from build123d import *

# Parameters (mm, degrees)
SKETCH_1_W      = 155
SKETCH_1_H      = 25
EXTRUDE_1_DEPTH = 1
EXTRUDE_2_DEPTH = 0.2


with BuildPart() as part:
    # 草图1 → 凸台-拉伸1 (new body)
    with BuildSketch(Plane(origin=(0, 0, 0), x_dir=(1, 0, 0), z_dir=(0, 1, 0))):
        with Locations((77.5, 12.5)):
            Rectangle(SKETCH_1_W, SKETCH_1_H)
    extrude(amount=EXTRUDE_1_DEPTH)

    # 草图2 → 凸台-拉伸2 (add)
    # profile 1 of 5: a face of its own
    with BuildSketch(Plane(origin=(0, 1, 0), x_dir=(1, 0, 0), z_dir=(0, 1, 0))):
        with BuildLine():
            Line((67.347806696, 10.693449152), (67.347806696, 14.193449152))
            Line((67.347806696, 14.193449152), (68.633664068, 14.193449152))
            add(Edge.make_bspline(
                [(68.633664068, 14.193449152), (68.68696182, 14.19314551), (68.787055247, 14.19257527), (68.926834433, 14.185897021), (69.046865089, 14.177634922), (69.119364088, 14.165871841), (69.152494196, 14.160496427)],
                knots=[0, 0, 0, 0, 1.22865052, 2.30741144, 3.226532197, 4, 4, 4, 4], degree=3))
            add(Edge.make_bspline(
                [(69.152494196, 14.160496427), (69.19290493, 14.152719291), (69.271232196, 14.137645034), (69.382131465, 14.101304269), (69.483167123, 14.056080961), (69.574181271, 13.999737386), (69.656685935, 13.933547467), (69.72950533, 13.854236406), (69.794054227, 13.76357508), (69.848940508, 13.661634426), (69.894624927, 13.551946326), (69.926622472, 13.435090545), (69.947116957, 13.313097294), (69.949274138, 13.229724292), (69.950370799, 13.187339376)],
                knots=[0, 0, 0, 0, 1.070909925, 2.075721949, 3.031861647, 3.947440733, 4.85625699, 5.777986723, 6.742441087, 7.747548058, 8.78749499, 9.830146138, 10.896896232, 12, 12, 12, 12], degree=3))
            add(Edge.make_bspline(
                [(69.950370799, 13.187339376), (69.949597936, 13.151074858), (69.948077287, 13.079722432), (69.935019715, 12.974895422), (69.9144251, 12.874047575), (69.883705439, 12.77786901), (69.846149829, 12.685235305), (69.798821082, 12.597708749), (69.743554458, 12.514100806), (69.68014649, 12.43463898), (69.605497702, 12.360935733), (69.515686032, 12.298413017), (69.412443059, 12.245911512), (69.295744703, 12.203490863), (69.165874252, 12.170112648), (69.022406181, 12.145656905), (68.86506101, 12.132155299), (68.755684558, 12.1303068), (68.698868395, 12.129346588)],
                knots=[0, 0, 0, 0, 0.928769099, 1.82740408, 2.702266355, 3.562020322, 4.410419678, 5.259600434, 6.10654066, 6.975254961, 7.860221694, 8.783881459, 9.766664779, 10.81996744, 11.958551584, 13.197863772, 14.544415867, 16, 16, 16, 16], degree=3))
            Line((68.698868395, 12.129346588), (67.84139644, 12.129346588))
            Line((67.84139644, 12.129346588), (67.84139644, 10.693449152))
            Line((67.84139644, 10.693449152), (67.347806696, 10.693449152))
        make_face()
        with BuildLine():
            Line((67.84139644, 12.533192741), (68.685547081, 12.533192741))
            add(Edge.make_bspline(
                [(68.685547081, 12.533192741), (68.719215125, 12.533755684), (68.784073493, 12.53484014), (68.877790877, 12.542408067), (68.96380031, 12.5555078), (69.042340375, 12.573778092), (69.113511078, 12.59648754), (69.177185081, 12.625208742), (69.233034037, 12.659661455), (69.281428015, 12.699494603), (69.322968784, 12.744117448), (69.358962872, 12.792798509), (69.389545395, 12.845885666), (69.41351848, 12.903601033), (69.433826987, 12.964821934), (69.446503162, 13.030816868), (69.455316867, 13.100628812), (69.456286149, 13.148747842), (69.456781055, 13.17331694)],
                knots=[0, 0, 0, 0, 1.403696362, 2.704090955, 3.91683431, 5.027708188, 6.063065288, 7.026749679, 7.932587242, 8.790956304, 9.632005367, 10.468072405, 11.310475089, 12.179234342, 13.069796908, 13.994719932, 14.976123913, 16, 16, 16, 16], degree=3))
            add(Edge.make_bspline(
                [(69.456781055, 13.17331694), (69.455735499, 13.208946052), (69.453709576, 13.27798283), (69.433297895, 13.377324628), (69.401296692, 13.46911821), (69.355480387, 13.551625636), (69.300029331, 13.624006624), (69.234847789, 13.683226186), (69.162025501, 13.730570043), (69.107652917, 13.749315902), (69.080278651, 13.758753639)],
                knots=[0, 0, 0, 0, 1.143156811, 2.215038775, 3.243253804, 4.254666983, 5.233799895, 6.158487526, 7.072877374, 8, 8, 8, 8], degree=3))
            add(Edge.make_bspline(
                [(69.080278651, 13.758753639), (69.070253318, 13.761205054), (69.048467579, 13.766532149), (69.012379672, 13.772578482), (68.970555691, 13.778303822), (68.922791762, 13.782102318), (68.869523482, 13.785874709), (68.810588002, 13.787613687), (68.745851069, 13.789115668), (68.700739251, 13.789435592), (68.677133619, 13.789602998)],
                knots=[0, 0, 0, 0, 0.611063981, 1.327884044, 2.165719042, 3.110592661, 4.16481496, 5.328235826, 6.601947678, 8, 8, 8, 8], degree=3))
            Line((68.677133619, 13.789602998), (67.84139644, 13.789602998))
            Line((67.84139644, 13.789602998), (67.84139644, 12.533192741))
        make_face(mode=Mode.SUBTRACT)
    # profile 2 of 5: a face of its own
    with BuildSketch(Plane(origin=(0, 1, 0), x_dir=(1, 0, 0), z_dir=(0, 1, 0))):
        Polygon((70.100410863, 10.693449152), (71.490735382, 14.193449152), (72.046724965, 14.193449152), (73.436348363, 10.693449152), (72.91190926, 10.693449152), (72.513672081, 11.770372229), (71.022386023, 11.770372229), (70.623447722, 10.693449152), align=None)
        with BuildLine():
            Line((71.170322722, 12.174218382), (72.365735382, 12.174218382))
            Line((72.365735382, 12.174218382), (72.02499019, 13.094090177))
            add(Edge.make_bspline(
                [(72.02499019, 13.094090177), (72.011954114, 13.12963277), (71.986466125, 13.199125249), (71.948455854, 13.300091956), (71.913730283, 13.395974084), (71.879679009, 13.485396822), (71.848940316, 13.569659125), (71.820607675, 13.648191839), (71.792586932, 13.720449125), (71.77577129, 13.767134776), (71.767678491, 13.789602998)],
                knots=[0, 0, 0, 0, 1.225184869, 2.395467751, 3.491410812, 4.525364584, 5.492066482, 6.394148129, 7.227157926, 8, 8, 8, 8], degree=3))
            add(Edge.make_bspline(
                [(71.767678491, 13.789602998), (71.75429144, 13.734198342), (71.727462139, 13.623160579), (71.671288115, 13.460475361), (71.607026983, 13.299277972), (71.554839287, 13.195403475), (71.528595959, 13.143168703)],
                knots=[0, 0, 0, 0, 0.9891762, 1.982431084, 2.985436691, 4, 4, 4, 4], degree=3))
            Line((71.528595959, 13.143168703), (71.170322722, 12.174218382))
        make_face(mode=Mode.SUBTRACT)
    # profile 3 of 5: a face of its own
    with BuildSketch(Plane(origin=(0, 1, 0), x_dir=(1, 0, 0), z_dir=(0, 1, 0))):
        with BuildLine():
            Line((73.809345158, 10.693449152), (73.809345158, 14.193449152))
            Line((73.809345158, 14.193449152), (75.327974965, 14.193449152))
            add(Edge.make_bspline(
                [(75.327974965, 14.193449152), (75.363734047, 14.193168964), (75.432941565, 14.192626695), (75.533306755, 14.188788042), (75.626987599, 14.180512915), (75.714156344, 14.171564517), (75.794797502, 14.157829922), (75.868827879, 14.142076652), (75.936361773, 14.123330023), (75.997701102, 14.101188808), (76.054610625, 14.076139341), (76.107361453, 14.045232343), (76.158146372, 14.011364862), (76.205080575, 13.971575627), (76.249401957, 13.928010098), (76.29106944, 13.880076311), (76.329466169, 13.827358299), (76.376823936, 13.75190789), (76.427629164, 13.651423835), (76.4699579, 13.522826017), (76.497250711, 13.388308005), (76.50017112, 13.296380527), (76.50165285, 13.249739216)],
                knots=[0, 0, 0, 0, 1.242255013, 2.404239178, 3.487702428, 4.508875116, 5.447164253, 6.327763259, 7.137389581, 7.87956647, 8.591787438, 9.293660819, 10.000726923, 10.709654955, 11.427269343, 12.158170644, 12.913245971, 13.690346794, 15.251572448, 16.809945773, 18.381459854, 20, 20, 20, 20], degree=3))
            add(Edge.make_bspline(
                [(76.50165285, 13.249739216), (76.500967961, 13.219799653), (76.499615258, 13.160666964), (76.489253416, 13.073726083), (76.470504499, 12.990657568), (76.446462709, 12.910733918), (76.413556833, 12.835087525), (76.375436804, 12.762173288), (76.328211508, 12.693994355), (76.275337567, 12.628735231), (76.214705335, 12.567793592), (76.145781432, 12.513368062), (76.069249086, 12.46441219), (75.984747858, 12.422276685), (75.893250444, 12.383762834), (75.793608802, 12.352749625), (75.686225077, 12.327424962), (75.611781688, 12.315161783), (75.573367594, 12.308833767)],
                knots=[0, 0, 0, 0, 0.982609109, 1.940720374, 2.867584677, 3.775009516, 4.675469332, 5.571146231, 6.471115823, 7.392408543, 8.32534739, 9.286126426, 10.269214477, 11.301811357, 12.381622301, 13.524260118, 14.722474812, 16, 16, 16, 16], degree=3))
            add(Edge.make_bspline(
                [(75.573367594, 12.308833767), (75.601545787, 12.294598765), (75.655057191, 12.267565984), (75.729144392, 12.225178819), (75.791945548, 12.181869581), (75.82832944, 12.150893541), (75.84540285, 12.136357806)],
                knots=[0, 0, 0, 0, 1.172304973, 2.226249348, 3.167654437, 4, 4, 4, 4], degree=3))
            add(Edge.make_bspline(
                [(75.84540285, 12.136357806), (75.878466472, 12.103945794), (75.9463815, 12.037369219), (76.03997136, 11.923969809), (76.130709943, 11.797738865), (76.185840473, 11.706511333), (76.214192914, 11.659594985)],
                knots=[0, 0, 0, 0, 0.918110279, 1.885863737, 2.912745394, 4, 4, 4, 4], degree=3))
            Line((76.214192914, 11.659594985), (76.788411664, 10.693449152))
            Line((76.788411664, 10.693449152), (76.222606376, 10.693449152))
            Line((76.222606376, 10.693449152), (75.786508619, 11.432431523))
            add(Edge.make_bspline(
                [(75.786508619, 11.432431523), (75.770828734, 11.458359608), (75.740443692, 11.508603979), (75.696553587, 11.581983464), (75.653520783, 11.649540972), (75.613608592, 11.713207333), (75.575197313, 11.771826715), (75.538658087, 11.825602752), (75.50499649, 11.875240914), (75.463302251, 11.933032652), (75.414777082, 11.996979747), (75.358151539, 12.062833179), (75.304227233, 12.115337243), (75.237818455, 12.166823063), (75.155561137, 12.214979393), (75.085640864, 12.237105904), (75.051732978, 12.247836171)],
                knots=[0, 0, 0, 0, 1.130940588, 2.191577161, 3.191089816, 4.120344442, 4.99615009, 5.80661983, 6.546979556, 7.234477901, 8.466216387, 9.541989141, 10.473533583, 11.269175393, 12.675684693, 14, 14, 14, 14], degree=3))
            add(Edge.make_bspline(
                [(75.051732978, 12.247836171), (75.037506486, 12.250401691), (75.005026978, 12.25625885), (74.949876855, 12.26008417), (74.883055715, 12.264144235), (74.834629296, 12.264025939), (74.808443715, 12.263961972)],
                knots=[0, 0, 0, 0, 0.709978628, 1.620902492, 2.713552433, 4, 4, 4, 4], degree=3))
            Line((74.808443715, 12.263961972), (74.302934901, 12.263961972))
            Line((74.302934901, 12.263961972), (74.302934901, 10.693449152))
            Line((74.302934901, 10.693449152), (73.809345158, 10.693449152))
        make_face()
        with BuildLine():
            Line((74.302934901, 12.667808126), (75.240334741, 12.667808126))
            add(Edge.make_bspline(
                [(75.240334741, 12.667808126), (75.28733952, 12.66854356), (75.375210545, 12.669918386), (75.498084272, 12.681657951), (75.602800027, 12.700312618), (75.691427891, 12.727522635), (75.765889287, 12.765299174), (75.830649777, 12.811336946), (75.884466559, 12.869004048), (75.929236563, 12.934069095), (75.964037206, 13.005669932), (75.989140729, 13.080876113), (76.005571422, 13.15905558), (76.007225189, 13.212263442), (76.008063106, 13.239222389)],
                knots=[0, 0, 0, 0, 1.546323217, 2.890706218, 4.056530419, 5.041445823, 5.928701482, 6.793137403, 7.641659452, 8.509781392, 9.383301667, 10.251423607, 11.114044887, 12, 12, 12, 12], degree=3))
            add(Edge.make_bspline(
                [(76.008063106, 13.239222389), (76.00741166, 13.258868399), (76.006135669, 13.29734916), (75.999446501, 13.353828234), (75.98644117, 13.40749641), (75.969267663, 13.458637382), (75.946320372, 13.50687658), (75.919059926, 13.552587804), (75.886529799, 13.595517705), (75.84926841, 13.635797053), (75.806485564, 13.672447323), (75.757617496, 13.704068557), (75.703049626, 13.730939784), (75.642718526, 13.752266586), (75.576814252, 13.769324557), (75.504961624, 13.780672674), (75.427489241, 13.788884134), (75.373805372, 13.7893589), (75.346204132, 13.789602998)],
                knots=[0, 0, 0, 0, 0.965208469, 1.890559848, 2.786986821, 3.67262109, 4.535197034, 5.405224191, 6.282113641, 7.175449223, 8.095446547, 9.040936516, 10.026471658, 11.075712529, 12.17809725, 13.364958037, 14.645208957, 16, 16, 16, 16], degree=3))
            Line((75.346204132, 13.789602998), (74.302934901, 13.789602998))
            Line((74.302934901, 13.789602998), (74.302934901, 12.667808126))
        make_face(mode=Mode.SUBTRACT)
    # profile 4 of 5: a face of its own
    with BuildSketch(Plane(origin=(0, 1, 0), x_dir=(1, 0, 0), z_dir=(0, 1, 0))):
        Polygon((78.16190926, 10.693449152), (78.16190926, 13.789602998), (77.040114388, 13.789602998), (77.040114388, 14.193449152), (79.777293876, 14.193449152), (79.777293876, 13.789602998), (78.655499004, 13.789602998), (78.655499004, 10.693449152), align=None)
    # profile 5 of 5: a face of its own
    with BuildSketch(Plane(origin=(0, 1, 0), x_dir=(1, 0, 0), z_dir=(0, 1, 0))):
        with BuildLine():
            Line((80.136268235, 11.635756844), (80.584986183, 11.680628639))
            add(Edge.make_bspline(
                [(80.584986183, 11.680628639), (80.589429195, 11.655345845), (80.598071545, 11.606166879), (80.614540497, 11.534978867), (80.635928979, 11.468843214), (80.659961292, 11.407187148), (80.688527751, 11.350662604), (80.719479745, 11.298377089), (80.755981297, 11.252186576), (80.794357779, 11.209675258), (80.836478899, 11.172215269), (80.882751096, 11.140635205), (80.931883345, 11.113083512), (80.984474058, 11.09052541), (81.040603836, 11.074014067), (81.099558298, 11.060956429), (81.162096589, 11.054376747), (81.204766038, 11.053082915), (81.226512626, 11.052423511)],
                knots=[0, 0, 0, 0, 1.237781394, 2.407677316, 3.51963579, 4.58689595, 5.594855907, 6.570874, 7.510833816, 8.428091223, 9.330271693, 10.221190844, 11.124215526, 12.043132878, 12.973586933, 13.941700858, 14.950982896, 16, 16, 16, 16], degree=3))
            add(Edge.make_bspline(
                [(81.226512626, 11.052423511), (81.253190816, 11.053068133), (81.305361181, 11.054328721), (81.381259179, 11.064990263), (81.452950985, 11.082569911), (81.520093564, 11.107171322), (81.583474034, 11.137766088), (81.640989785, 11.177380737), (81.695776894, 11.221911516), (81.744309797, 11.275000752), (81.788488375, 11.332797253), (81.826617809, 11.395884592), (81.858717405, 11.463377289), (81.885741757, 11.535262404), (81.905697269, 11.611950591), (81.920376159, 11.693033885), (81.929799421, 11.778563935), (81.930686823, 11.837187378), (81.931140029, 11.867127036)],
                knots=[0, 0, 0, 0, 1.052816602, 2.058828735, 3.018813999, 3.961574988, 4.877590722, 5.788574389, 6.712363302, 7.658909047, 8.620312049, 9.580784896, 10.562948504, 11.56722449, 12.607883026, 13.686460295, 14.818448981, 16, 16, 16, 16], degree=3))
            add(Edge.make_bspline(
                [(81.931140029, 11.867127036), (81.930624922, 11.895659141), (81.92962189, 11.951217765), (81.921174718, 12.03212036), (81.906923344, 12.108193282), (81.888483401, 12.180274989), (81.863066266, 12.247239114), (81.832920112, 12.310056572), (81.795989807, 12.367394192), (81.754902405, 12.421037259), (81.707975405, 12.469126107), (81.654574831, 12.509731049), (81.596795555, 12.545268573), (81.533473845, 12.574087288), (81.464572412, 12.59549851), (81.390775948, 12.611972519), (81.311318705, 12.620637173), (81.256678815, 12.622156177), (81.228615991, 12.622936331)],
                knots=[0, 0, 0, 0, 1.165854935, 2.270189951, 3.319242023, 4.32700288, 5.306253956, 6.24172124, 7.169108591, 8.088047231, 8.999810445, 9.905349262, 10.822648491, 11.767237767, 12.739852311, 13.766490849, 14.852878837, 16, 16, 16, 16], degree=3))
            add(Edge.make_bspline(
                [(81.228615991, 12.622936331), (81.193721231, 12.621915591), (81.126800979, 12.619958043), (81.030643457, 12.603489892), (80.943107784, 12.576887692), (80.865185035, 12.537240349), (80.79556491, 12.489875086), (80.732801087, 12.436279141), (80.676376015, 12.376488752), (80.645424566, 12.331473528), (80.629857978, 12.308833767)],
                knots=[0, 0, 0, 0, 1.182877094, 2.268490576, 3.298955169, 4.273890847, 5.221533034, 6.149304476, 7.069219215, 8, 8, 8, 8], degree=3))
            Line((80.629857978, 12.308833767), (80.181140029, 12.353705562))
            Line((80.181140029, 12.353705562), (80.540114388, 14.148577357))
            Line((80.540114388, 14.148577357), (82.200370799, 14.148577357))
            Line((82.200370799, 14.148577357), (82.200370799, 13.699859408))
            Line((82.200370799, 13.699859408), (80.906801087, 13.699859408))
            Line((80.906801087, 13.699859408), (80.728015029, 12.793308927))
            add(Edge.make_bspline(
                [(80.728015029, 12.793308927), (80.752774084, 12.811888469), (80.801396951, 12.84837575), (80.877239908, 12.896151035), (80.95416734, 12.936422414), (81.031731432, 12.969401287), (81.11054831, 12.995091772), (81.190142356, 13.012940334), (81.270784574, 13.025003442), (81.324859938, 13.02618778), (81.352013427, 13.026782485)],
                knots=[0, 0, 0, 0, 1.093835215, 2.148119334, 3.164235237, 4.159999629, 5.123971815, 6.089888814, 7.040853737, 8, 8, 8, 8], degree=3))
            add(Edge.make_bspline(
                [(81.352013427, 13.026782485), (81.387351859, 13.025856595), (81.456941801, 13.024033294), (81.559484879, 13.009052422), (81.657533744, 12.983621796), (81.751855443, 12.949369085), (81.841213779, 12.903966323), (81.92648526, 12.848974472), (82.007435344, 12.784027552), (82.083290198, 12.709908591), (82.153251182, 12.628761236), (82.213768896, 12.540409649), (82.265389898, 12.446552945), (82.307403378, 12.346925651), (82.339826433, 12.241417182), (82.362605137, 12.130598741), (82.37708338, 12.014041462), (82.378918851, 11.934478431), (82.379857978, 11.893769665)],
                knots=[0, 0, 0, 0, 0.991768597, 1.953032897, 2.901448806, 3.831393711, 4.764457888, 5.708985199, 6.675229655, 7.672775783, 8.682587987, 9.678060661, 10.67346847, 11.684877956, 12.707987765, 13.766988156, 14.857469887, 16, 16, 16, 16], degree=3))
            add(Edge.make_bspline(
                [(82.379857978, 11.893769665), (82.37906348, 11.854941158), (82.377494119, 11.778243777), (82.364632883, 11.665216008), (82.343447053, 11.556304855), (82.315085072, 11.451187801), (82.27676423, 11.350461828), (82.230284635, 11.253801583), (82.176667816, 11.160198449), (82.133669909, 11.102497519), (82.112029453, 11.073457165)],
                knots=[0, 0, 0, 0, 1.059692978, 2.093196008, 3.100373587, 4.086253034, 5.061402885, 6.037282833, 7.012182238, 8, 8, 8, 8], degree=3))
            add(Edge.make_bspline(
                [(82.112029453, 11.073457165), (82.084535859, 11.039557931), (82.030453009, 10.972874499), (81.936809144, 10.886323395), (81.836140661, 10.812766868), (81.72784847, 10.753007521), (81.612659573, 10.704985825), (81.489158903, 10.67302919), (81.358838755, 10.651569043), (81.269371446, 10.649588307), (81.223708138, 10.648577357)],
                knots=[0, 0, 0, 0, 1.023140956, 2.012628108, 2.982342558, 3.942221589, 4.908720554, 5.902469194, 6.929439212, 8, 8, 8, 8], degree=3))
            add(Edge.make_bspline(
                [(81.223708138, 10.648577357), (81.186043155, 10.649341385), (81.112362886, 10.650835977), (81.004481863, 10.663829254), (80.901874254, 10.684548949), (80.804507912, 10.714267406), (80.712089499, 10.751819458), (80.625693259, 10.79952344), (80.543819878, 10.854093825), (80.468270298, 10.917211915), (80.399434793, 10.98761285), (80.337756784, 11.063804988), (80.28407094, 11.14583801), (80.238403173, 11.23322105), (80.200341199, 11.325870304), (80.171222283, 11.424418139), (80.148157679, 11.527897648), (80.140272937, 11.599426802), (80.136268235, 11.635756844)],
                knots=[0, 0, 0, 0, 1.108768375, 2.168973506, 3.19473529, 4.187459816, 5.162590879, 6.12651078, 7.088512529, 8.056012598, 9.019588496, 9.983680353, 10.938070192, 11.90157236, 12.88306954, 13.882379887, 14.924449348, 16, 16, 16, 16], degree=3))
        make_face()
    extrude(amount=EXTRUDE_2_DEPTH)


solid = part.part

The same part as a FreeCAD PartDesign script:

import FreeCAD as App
import Part
import Sketcher
from FreeCAD import Vector


def add_polygon(sketch, points):
    """Adds a closed chain of lines whose ends are joined by coincident constraints."""
    first, n = sketch.GeometryCount, len(points)
    for a, b in zip(points, points[1:] + points[:1]):
        sketch.addGeometry(Part.LineSegment(App.Vector(*a, 0), App.Vector(*b, 0)), False)
    for i in range(n):
        sketch.addConstraint(Sketcher.Constraint("Coincident", first + i, 2, first + (i + 1) % n, 1))

doc = App.newDocument("Part")
body = doc.addObject("PartDesign::Body", "Body")

# Sketch on XZ plane
sketch1 = doc.addObject("Sketcher::SketchObject", "Sketch")
body.addObject(sketch1)
sketch1.AttachmentSupport = (doc.XZ_Plane, [""])
sketch1.MapMode = "FlatFace"
add_polygon(sketch1, [(0, -25), (0, 0), (155, 0), (155, -25)])  # lines 0-3
sketch1.addConstraint([
    Sketcher.Constraint("Vertical", 0),
    Sketcher.Constraint("Horizontal", 1),
    Sketcher.Constraint("Vertical", 2),
    Sketcher.Constraint("Horizontal", 3),
    Sketcher.Constraint("Coincident", 0, 2, -1, 1),
    Sketcher.Constraint("DistanceX", 1, 1, 1, 2, 155.0),
    Sketcher.Constraint("DistanceY", 0, 1, 0, 2, 25.0),
])
pad1 = doc.addObject("PartDesign::Pad", "Pad")
body.addObject(pad1)
pad1.Profile = sketch1
pad1.Length = 1
pad1.Reversed = True

# Sketch on XZ plane
sketch2 = doc.addObject("Sketcher::SketchObject", "Sketch001")
body.addObject(sketch2)
sketch2.AttachmentSupport = (doc.XZ_Plane, [""])
sketch2.MapMode = "FlatFace"
sketch2.AttachmentOffset = App.Placement(Vector(0, 0, -1), App.Rotation())
sketch2.addGeometry(Part.LineSegment(Vector(67.347807, -14.193449, 0), Vector(67.347807, -10.693449, 0)), False)  # 0
sketch2.addGeometry(Part.LineSegment(Vector(67.347807, -10.693449, 0), Vector(67.841396, -10.693449, 0)), False)  # 1
sketch2.addGeometry(Part.LineSegment(Vector(67.841396, -10.693449, 0), Vector(67.841396, -12.129347, 0)), False)  # 2
sketch2.addGeometry(Part.LineSegment(Vector(67.841396, -12.129347, 0), Vector(68.698868, -12.129347, 0)), False)  # 3
sketch2.addGeometry(Part.BSplineCurve([Vector(69.950371, -13.187339, 0), Vector(69.949598, -13.151075, 0), Vector(69.948077, -13.079722, 0), Vector(69.93502, -12.974895, 0), Vector(69.914425, -12.874048, 0), Vector(69.883705, -12.777869, 0), Vector(69.84615, -12.685235, 0), Vector(69.798821, -12.597709, 0), Vector(69.743554, -12.514101, 0), Vector(69.680146, -12.434639, 0), Vector(69.605498, -12.360936, 0), Vector(69.515686, -12.298413, 0), Vector(69.412443, -12.245912, 0), Vector(69.295745, -12.203491, 0), Vector(69.165874, -12.170113, 0), Vector(69.022406, -12.145657, 0), Vector(68.865061, -12.132155, 0), Vector(68.755685, -12.130307, 0), Vector(68.698868, -12.129347, 0)], [4, 1, 1, 1, 1, 1, 1, 1, 1, 1, 1, 1, 1, 1, 1, 1, 4], [0, 0.928769099, 1.82740408, 2.702266355, 3.562020322, 4.410419678, 5.259600434, 6.10654066, 6.975254961, 7.860221694, 8.783881459, 9.766664779, 10.81996744, 11.958551584, 13.197863772, 14.544415867, 16], False, 3, [1, 1, 1, 1, 1, 1, 1, 1, 1, 1, 1, 1, 1, 1, 1, 1, 1, 1, 1], False), False)  # 4
sketch2.addGeometry(Part.BSplineCurve([Vector(69.152494, -14.160496, 0), Vector(69.192905, -14.152719, 0), Vector(69.271232, -14.137645, 0), Vector(69.382131, -14.101304, 0), Vector(69.483167, -14.056081, 0), Vector(69.574181, -13.999737, 0), Vector(69.656686, -13.933547, 0), Vector(69.729505, -13.854236, 0), Vector(69.794054, -13.763575, 0), Vector(69.848941, -13.661634, 0), Vector(69.894625, -13.551946, 0), Vector(69.926622, -13.435091, 0), Vector(69.947117, -13.313097, 0), Vector(69.949274, -13.229724, 0), Vector(69.950371, -13.187339, 0)], [4, 1, 1, 1, 1, 1, 1, 1, 1, 1, 1, 1, 4], [0, 1.070909925, 2.075721949, 3.031861647, 3.947440733, 4.85625699, 5.777986723, 6.742441087, 7.747548058, 8.78749499, 9.830146138, 10.896896232, 12], False, 3, [1, 1, 1, 1, 1, 1, 1, 1, 1, 1, 1, 1, 1, 1, 1], False), False)  # 5
sketch2.addGeometry(Part.BSplineCurve([Vector(68.633664, -14.193449, 0), Vector(68.686962, -14.193146, 0), Vector(68.787055, -14.192575, 0), Vector(68.926834, -14.185897, 0), Vector(69.046865, -14.177635, 0), Vector(69.119364, -14.165872, 0), Vector(69.152494, -14.160496, 0)], [4, 1, 1, 1, 4], [0, 1.22865052, 2.30741144, 3.226532197, 4], False, 3, [1, 1, 1, 1, 1, 1, 1], False), False)  # 6
sketch2.addGeometry(Part.LineSegment(Vector(68.633664, -14.193449, 0), Vector(67.347807, -14.193449, 0)), False)  # 7
sketch2.addGeometry(Part.LineSegment(Vector(67.841396, -12.533193, 0), Vector(67.841396, -13.789603, 0)), False)  # 8
sketch2.addGeometry(Part.LineSegment(Vector(67.841396, -13.789603, 0), Vector(68.677134, -13.789603, 0)), False)  # 9
sketch2.addGeometry(Part.BSplineCurve([Vector(69.080279, -13.758754, 0), Vector(69.070253, -13.761205, 0), Vector(69.048468, -13.766532, 0), Vector(69.01238, -13.772578, 0), Vector(68.970556, -13.778304, 0), Vector(68.922792, -13.782102, 0), Vector(68.869523, -13.785875, 0), Vector(68.810588, -13.787614, 0), Vector(68.745851, -13.789116, 0), Vector(68.700739, -13.789436, 0), Vector(68.677134, -13.789603, 0)], [4, 1, 1, 1, 1, 1, 1, 1, 4], [0, 0.611063981, 1.327884044, 2.165719042, 3.110592661, 4.16481496, 5.328235826, 6.601947678, 8], False, 3, [1, 1, 1, 1, 1, 1, 1, 1, 1, 1, 1], False), False)  # 10
sketch2.addGeometry(Part.BSplineCurve([Vector(69.456781, -13.173317, 0), Vector(69.455735, -13.208946, 0), Vector(69.45371, -13.277983, 0), Vector(69.433298, -13.377325, 0), Vector(69.401297, -13.469118, 0), Vector(69.35548, -13.551626, 0), Vector(69.300029, -13.624007, 0), Vector(69.234848, -13.683226, 0), Vector(69.162026, -13.73057, 0), Vector(69.107653, -13.749316, 0), Vector(69.080279, -13.758754, 0)], [4, 1, 1, 1, 1, 1, 1, 1, 4], [0, 1.143156811, 2.215038775, 3.243253804, 4.254666983, 5.233799895, 6.158487526, 7.072877374, 8], False, 3, [1, 1, 1, 1, 1, 1, 1, 1, 1, 1, 1], False), False)  # 11
sketch2.addGeometry(Part.BSplineCurve([Vector(68.685547, -12.533193, 0), Vector(68.719215, -12.533756, 0), Vector(68.784073, -12.53484, 0), Vector(68.877791, -12.542408, 0), Vector(68.9638, -12.555508, 0), Vector(69.04234, -12.573778, 0), Vector(69.113511, -12.596488, 0), Vector(69.177185, -12.625209, 0), Vector(69.233034, -12.659661, 0), Vector(69.281428, -12.699495, 0), Vector(69.322969, -12.744117, 0), Vector(69.358963, -12.792799, 0), Vector(69.389545, -12.845886, 0), Vector(69.413518, -12.903601, 0), Vector(69.433827, -12.964822, 0), Vector(69.446503, -13.030817, 0), Vector(69.455317, -13.100629, 0), Vector(69.456286, -13.148748, 0), Vector(69.456781, -13.173317, 0)], [4, 1, 1, 1, 1, 1, 1, 1, 1, 1, 1, 1, 1, 1, 1, 1, 4], [0, 1.403696362, 2.704090955, 3.91683431, 5.027708188, 6.063065288, 7.026749679, 7.932587242, 8.790956304, 9.632005367, 10.468072405, 11.310475089, 12.179234342, 13.069796908, 13.994719932, 14.976123913, 16], False, 3, [1, 1, 1, 1, 1, 1, 1, 1, 1, 1, 1, 1, 1, 1, 1, 1, 1, 1, 1], False), False)  # 12
sketch2.addGeometry(Part.LineSegment(Vector(68.685547, -12.533193, 0), Vector(67.841396, -12.533193, 0)), False)  # 13
add_polygon(sketch2, [(71.490735, -14.193449), (70.100411, -10.693449), (70.623448, -10.693449), (71.022386, -11.770372), (72.513672, -11.770372), (72.911909, -10.693449), (73.436348, -10.693449), (72.046725, -14.193449)])  # lines 14-21
sketch2.addGeometry(Part.LineSegment(Vector(71.170323, -12.174218, 0), Vector(71.528596, -13.143169, 0)), False)  # 22
sketch2.addGeometry(Part.BSplineCurve([Vector(71.767678, -13.789603, 0), Vector(71.754291, -13.734198, 0), Vector(71.727462, -13.623161, 0), Vector(71.671288, -13.460475, 0), Vector(71.607027, -13.299278, 0), Vector(71.554839, -13.195403, 0), Vector(71.528596, -13.143169, 0)], [4, 1, 1, 1, 4], [0, 0.9891762, 1.982431084, 2.985436691, 4], False, 3, [1, 1, 1, 1, 1, 1, 1], False), False)  # 23
sketch2.addGeometry(Part.BSplineCurve([Vector(72.02499, -13.09409, 0), Vector(72.011954, -13.129633, 0), Vector(71.986466, -13.199125, 0), Vector(71.948456, -13.300092, 0), Vector(71.91373, -13.395974, 0), Vector(71.879679, -13.485397, 0), Vector(71.84894, -13.569659, 0), Vector(71.820608, -13.648192, 0), Vector(71.792587, -13.720449, 0), Vector(71.775771, -13.767135, 0), Vector(71.767678, -13.789603, 0)], [4, 1, 1, 1, 1, 1, 1, 1, 4], [0, 1.225184869, 2.395467751, 3.491410812, 4.525364584, 5.492066482, 6.394148129, 7.227157926, 8], False, 3, [1, 1, 1, 1, 1, 1, 1, 1, 1, 1, 1], False), False)  # 24
sketch2.addGeometry(Part.LineSegment(Vector(72.02499, -13.09409, 0), Vector(72.365735, -12.174218, 0)), False)  # 25
sketch2.addGeometry(Part.LineSegment(Vector(72.365735, -12.174218, 0), Vector(71.170323, -12.174218, 0)), False)  # 26
sketch2.addGeometry(Part.LineSegment(Vector(73.809345, -14.193449, 0), Vector(73.809345, -10.693449, 0)), False)  # 27
sketch2.addGeometry(Part.LineSegment(Vector(73.809345, -10.693449, 0), Vector(74.302935, -10.693449, 0)), False)  # 28
sketch2.addGeometry(Part.LineSegment(Vector(74.302935, -10.693449, 0), Vector(74.302935, -12.263962, 0)), False)  # 29
sketch2.addGeometry(Part.LineSegment(Vector(74.302935, -12.263962, 0), Vector(74.808444, -12.263962, 0)), False)  # 30
sketch2.addGeometry(Part.BSplineCurve([Vector(75.051733, -12.247836, 0), Vector(75.037506, -12.250402, 0), Vector(75.005027, -12.256259, 0), Vector(74.949877, -12.260084, 0), Vector(74.883056, -12.264144, 0), Vector(74.834629, -12.264026, 0), Vector(74.808444, -12.263962, 0)], [4, 1, 1, 1, 4], [0, 0.709978628, 1.620902492, 2.713552433, 4], False, 3, [1, 1, 1, 1, 1, 1, 1], False), False)  # 31
sketch2.addGeometry(Part.BSplineCurve([Vector(75.786509, -11.432432, 0), Vector(75.770829, -11.45836, 0), Vector(75.740444, -11.508604, 0), Vector(75.696554, -11.581983, 0), Vector(75.653521, -11.649541, 0), Vector(75.613609, -11.713207, 0), Vector(75.575197, -11.771827, 0), Vector(75.538658, -11.825603, 0), Vector(75.504996, -11.875241, 0), Vector(75.463302, -11.933033, 0), Vector(75.414777, -11.99698, 0), Vector(75.358152, -12.062833, 0), Vector(75.304227, -12.115337, 0), Vector(75.237818, -12.166823, 0), Vector(75.155561, -12.214979, 0), Vector(75.085641, -12.237106, 0), Vector(75.051733, -12.247836, 0)], [4, 1, 1, 1, 1, 1, 1, 1, 1, 1, 1, 1, 1, 1, 4], [0, 1.130940588, 2.191577161, 3.191089816, 4.120344442, 4.99615009, 5.80661983, 6.546979556, 7.234477901, 8.466216387, 9.541989141, 10.473533583, 11.269175393, 12.675684693, 14], False, 3, [1, 1, 1, 1, 1, 1, 1, 1, 1, 1, 1, 1, 1, 1, 1, 1, 1], False), False)  # 32
sketch2.addGeometry(Part.LineSegment(Vector(75.786509, -11.432432, 0), Vector(76.222606, -10.693449, 0)), False)  # 33
sketch2.addGeometry(Part.LineSegment(Vector(76.222606, -10.693449, 0), Vector(76.788412, -10.693449, 0)), False)  # 34
sketch2.addGeometry(Part.LineSegment(Vector(76.788412, -10.693449, 0), Vector(76.214193, -11.659595, 0)), False)  # 35
sketch2.addGeometry(Part.BSplineCurve([Vector(75.845403, -12.136358, 0), Vector(75.878466, -12.103946, 0), Vector(75.946382, -12.037369, 0), Vector(76.039971, -11.92397, 0), Vector(76.13071, -11.797739, 0), Vector(76.18584, -11.706511, 0), Vector(76.214193, -11.659595, 0)], [4, 1, 1, 1, 4], [0, 0.918110279, 1.885863737, 2.912745394, 4], False, 3, [1, 1, 1, 1, 1, 1, 1], False), False)  # 36
sketch2.addGeometry(Part.BSplineCurve([Vector(75.573368, -12.308834, 0), Vector(75.601546, -12.294599, 0), Vector(75.655057, -12.267566, 0), Vector(75.729144, -12.225179, 0), Vector(75.791946, -12.18187, 0), Vector(75.828329, -12.150894, 0), Vector(75.845403, -12.136358, 0)], [4, 1, 1, 1, 4], [0, 1.172304973, 2.226249348, 3.167654437, 4], False, 3, [1, 1, 1, 1, 1, 1, 1], False), False)  # 37
sketch2.addGeometry(Part.BSplineCurve([Vector(76.501653, -13.249739, 0), Vector(76.500968, -13.2198, 0), Vector(76.499615, -13.160667, 0), Vector(76.489253, -13.073726, 0), Vector(76.470504, -12.990658, 0), Vector(76.446463, -12.910734, 0), Vector(76.413557, -12.835088, 0), Vector(76.375437, -12.762173, 0), Vector(76.328212, -12.693994, 0), Vector(76.275338, -12.628735, 0), Vector(76.214705, -12.567794, 0), Vector(76.145781, -12.513368, 0), Vector(76.069249, -12.464412, 0), Vector(75.984748, -12.422277, 0), Vector(75.89325, -12.383763, 0), Vector(75.793609, -12.35275, 0), Vector(75.686225, -12.327425, 0), Vector(75.611782, -12.315162, 0), Vector(75.573368, -12.308834, 0)], [4, 1, 1, 1, 1, 1, 1, 1, 1, 1, 1, 1, 1, 1, 1, 1, 4], [0, 0.982609109, 1.940720374, 2.867584677, 3.775009516, 4.675469332, 5.571146231, 6.471115823, 7.392408543, 8.32534739, 9.286126426, 10.269214477, 11.301811357, 12.381622301, 13.524260118, 14.722474812, 16], False, 3, [1, 1, 1, 1, 1, 1, 1, 1, 1, 1, 1, 1, 1, 1, 1, 1, 1, 1, 1], False), False)  # 38
sketch2.addGeometry(Part.BSplineCurve([Vector(75.327975, -14.193449, 0), Vector(75.363734, -14.193169, 0), Vector(75.432942, -14.192627, 0), Vector(75.533307, -14.188788, 0), Vector(75.626988, -14.180513, 0), Vector(75.714156, -14.171565, 0), Vector(75.794798, -14.15783, 0), Vector(75.868828, -14.142077, 0), Vector(75.936362, -14.12333, 0), Vector(75.997701, -14.101189, 0), Vector(76.054611, -14.076139, 0), Vector(76.107361, -14.045232, 0), Vector(76.158146, -14.011365, 0), Vector(76.205081, -13.971576, 0), Vector(76.249402, -13.92801, 0), Vector(76.291069, -13.880076, 0), Vector(76.329466, -13.827358, 0), Vector(76.376824, -13.751908, 0), Vector(76.427629, -13.651424, 0), Vector(76.469958, -13.522826, 0), Vector(76.497251, -13.388308, 0), Vector(76.500171, -13.296381, 0), Vector(76.501653, -13.249739, 0)], [4, 1, 1, 1, 1, 1, 1, 1, 1, 1, 1, 1, 1, 1, 1, 1, 1, 1, 1, 1, 4], [0, 1.242255013, 2.404239178, 3.487702428, 4.508875116, 5.447164253, 6.327763259, 7.137389581, 7.87956647, 8.591787438, 9.293660819, 10.000726923, 10.709654955, 11.427269343, 12.158170644, 12.913245971, 13.690346794, 15.251572448, 16.809945773, 18.381459854, 20], False, 3, [1, 1, 1, 1, 1, 1, 1, 1, 1, 1, 1, 1, 1, 1, 1, 1, 1, 1, 1, 1, 1, 1, 1], False), False)  # 39
sketch2.addGeometry(Part.LineSegment(Vector(75.327975, -14.193449, 0), Vector(73.809345, -14.193449, 0)), False)  # 40
sketch2.addGeometry(Part.LineSegment(Vector(74.302935, -12.667808, 0), Vector(74.302935, -13.789603, 0)), False)  # 41
sketch2.addGeometry(Part.LineSegment(Vector(74.302935, -13.789603, 0), Vector(75.346204, -13.789603, 0)), False)  # 42
sketch2.addGeometry(Part.BSplineCurve([Vector(76.008063, -13.239222, 0), Vector(76.007412, -13.258868, 0), Vector(76.006136, -13.297349, 0), Vector(75.999447, -13.353828, 0), Vector(75.986441, -13.407496, 0), Vector(75.969268, -13.458637, 0), Vector(75.94632, -13.506877, 0), Vector(75.91906, -13.552588, 0), Vector(75.88653, -13.595518, 0), Vector(75.849268, -13.635797, 0), Vector(75.806486, -13.672447, 0), Vector(75.757617, -13.704069, 0), Vector(75.70305, -13.73094, 0), Vector(75.642719, -13.752267, 0), Vector(75.576814, -13.769325, 0), Vector(75.504962, -13.780673, 0), Vector(75.427489, -13.788884, 0), Vector(75.373805, -13.789359, 0), Vector(75.346204, -13.789603, 0)], [4, 1, 1, 1, 1, 1, 1, 1, 1, 1, 1, 1, 1, 1, 1, 1, 4], [0, 0.965208469, 1.890559848, 2.786986821, 3.67262109, 4.535197034, 5.405224191, 6.282113641, 7.175449223, 8.095446547, 9.040936516, 10.026471658, 11.075712529, 12.17809725, 13.364958037, 14.645208957, 16], False, 3, [1, 1, 1, 1, 1, 1, 1, 1, 1, 1, 1, 1, 1, 1, 1, 1, 1, 1, 1], False), False)  # 43
sketch2.addGeometry(Part.BSplineCurve([Vector(75.240335, -12.667808, 0), Vector(75.28734, -12.668544, 0), Vector(75.375211, -12.669918, 0), Vector(75.498084, -12.681658, 0), Vector(75.6028, -12.700313, 0), Vector(75.691428, -12.727523, 0), Vector(75.765889, -12.765299, 0), Vector(75.83065, -12.811337, 0), Vector(75.884467, -12.869004, 0), Vector(75.929237, -12.934069, 0), Vector(75.964037, -13.00567, 0), Vector(75.989141, -13.080876, 0), Vector(76.005571, -13.159056, 0), Vector(76.007225, -13.212263, 0), Vector(76.008063, -13.239222, 0)], [4, 1, 1, 1, 1, 1, 1, 1, 1, 1, 1, 1, 4], [0, 1.546323217, 2.890706218, 4.056530419, 5.041445823, 5.928701482, 6.793137403, 7.641659452, 8.509781392, 9.383301667, 10.251423607, 11.114044887, 12], False, 3, [1, 1, 1, 1, 1, 1, 1, 1, 1, 1, 1, 1, 1, 1, 1], False), False)  # 44
sketch2.addGeometry(Part.LineSegment(Vector(75.240335, -12.667808, 0), Vector(74.302935, -12.667808, 0)), False)  # 45
add_polygon(sketch2, [(78.161909, -13.789603), (78.161909, -10.693449), (78.655499, -10.693449), (78.655499, -13.789603), (79.777294, -13.789603), (79.777294, -14.193449), (77.040114, -14.193449), (77.040114, -13.789603)])  # lines 46-53
sketch2.addGeometry(Part.LineSegment(Vector(80.584986, -11.680629, 0), Vector(80.136268, -11.635757, 0)), False)  # 54
sketch2.addGeometry(Part.BSplineCurve([Vector(81.223708, -10.648577, 0), Vector(81.186043, -10.649341, 0), Vector(81.112363, -10.650836, 0), Vector(81.004482, -10.663829, 0), Vector(80.901874, -10.684549, 0), Vector(80.804508, -10.714267, 0), Vector(80.712089, -10.751819, 0), Vector(80.625693, -10.799523, 0), Vector(80.54382, -10.854094, 0), Vector(80.46827, -10.917212, 0), Vector(80.399435, -10.987613, 0), Vector(80.337757, -11.063805, 0), Vector(80.284071, -11.145838, 0), Vector(80.238403, -11.233221, 0), Vector(80.200341, -11.32587, 0), Vector(80.171222, -11.424418, 0), Vector(80.148158, -11.527898, 0), Vector(80.140273, -11.599427, 0), Vector(80.136268, -11.635757, 0)], [4, 1, 1, 1, 1, 1, 1, 1, 1, 1, 1, 1, 1, 1, 1, 1, 4], [0, 1.108768375, 2.168973506, 3.19473529, 4.187459816, 5.162590879, 6.12651078, 7.088512529, 8.056012598, 9.019588496, 9.983680353, 10.938070192, 11.90157236, 12.88306954, 13.882379887, 14.924449348, 16], False, 3, [1, 1, 1, 1, 1, 1, 1, 1, 1, 1, 1, 1, 1, 1, 1, 1, 1, 1, 1], False), False)  # 55
sketch2.addGeometry(Part.BSplineCurve([Vector(82.112029, -11.073457, 0), Vector(82.084536, -11.039558, 0), Vector(82.030453, -10.972874, 0), Vector(81.936809, -10.886323, 0), Vector(81.836141, -10.812767, 0), Vector(81.727848, -10.753008, 0), Vector(81.61266, -10.704986, 0), Vector(81.489159, -10.673029, 0), Vector(81.358839, -10.651569, 0), Vector(81.269371, -10.649588, 0), Vector(81.223708, -10.648577, 0)], [4, 1, 1, 1, 1, 1, 1, 1, 4], [0, 1.023140956, 2.012628108, 2.982342558, 3.942221589, 4.908720554, 5.902469194, 6.929439212, 8], False, 3, [1, 1, 1, 1, 1, 1, 1, 1, 1, 1, 1], False), False)  # 56
sketch2.addGeometry(Part.BSplineCurve([Vector(82.379858, -11.89377, 0), Vector(82.379063, -11.854941, 0), Vector(82.377494, -11.778244, 0), Vector(82.364633, -11.665216, 0), Vector(82.343447, -11.556305, 0), Vector(82.315085, -11.451188, 0), Vector(82.276764, -11.350462, 0), Vector(82.230285, -11.253802, 0), Vector(82.176668, -11.160198, 0), Vector(82.13367, -11.102498, 0), Vector(82.112029, -11.073457, 0)], [4, 1, 1, 1, 1, 1, 1, 1, 4], [0, 1.059692978, 2.093196008, 3.100373587, 4.086253034, 5.061402885, 6.037282833, 7.012182238, 8], False, 3, [1, 1, 1, 1, 1, 1, 1, 1, 1, 1, 1], False), False)  # 57
sketch2.addGeometry(Part.BSplineCurve([Vector(81.352013, -13.026782, 0), Vector(81.387352, -13.025857, 0), Vector(81.456942, -13.024033, 0), Vector(81.559485, -13.009052, 0), Vector(81.657534, -12.983622, 0), Vector(81.751855, -12.949369, 0), Vector(81.841214, -12.903966, 0), Vector(81.926485, -12.848974, 0), Vector(82.007435, -12.784028, 0), Vector(82.08329, -12.709909, 0), Vector(82.153251, -12.628761, 0), Vector(82.213769, -12.54041, 0), Vector(82.26539, -12.446553, 0), Vector(82.307403, -12.346926, 0), Vector(82.339826, -12.241417, 0), Vector(82.362605, -12.130599, 0), Vector(82.377083, -12.014041, 0), Vector(82.378919, -11.934478, 0), Vector(82.379858, -11.89377, 0)], [4, 1, 1, 1, 1, 1, 1, 1, 1, 1, 1, 1, 1, 1, 1, 1, 4], [0, 0.991768597, 1.953032897, 2.901448806, 3.831393711, 4.764457888, 5.708985199, 6.675229655, 7.672775783, 8.682587987, 9.678060661, 10.67346847, 11.684877956, 12.707987765, 13.766988156, 14.857469887, 16], False, 3, [1, 1, 1, 1, 1, 1, 1, 1, 1, 1, 1, 1, 1, 1, 1, 1, 1, 1, 1], False), False)  # 58
sketch2.addGeometry(Part.BSplineCurve([Vector(80.728015, -12.793309, 0), Vector(80.752774, -12.811888, 0), Vector(80.801397, -12.848376, 0), Vector(80.87724, -12.896151, 0), Vector(80.954167, -12.936422, 0), Vector(81.031731, -12.969401, 0), Vector(81.110548, -12.995092, 0), Vector(81.190142, -13.01294, 0), Vector(81.270785, -13.025003, 0), Vector(81.32486, -13.026188, 0), Vector(81.352013, -13.026782, 0)], [4, 1, 1, 1, 1, 1, 1, 1, 4], [0, 1.093835215, 2.148119334, 3.164235237, 4.159999629, 5.123971815, 6.089888814, 7.040853737, 8], False, 3, [1, 1, 1, 1, 1, 1, 1, 1, 1, 1, 1], False), False)  # 59
sketch2.addGeometry(Part.LineSegment(Vector(80.728015, -12.793309, 0), Vector(80.906801, -13.699859, 0)), False)  # 60
sketch2.addGeometry(Part.LineSegment(Vector(80.906801, -13.699859, 0), Vector(82.200371, -13.699859, 0)), False)  # 61
sketch2.addGeometry(Part.LineSegment(Vector(82.200371, -13.699859, 0), Vector(82.200371, -14.148577, 0)), False)  # 62
sketch2.addGeometry(Part.LineSegment(Vector(82.200371, -14.148577, 0), Vector(80.540114, -14.148577, 0)), False)  # 63
sketch2.addGeometry(Part.LineSegment(Vector(80.540114, -14.148577, 0), Vector(80.18114, -12.353706, 0)), False)  # 64
sketch2.addGeometry(Part.LineSegment(Vector(80.18114, -12.353706, 0), Vector(80.629858, -12.308834, 0)), False)  # 65
sketch2.addGeometry(Part.BSplineCurve([Vector(81.228616, -12.622936, 0), Vector(81.193721, -12.621916, 0), Vector(81.126801, -12.619958, 0), Vector(81.030643, -12.60349, 0), Vector(80.943108, -12.576888, 0), Vector(80.865185, -12.53724, 0), Vector(80.795565, -12.489875, 0), Vector(80.732801, -12.436279, 0), Vector(80.676376, -12.376489, 0), Vector(80.645425, -12.331474, 0), Vector(80.629858, -12.308834, 0)], [4, 1, 1, 1, 1, 1, 1, 1, 4], [0, 1.182877094, 2.268490576, 3.298955169, 4.273890847, 5.221533034, 6.149304476, 7.069219215, 8], False, 3, [1, 1, 1, 1, 1, 1, 1, 1, 1, 1, 1], False), False)  # 66
sketch2.addGeometry(Part.BSplineCurve([Vector(81.93114, -11.867127, 0), Vector(81.930625, -11.895659, 0), Vector(81.929622, -11.951218, 0), Vector(81.921175, -12.03212, 0), Vector(81.906923, -12.108193, 0), Vector(81.888483, -12.180275, 0), Vector(81.863066, -12.247239, 0), Vector(81.83292, -12.310057, 0), Vector(81.79599, -12.367394, 0), Vector(81.754902, -12.421037, 0), Vector(81.707975, -12.469126, 0), Vector(81.654575, -12.509731, 0), Vector(81.596796, -12.545269, 0), Vector(81.533474, -12.574087, 0), Vector(81.464572, -12.595499, 0), Vector(81.390776, -12.611973, 0), Vector(81.311319, -12.620637, 0), Vector(81.256679, -12.622156, 0), Vector(81.228616, -12.622936, 0)], [4, 1, 1, 1, 1, 1, 1, 1, 1, 1, 1, 1, 1, 1, 1, 1, 4], [0, 1.165854935, 2.270189951, 3.319242023, 4.32700288, 5.306253956, 6.24172124, 7.169108591, 8.088047231, 8.999810445, 9.905349262, 10.822648491, 11.767237767, 12.739852311, 13.766490849, 14.852878837, 16], False, 3, [1, 1, 1, 1, 1, 1, 1, 1, 1, 1, 1, 1, 1, 1, 1, 1, 1, 1, 1], False), False)  # 67
sketch2.addGeometry(Part.BSplineCurve([Vector(81.226513, -11.052424, 0), Vector(81.253191, -11.053068, 0), Vector(81.305361, -11.054329, 0), Vector(81.381259, -11.06499, 0), Vector(81.452951, -11.08257, 0), Vector(81.520094, -11.107171, 0), Vector(81.583474, -11.137766, 0), Vector(81.64099, -11.177381, 0), Vector(81.695777, -11.221912, 0), Vector(81.74431, -11.275001, 0), Vector(81.788488, -11.332797, 0), Vector(81.826618, -11.395885, 0), Vector(81.858717, -11.463377, 0), Vector(81.885742, -11.535262, 0), Vector(81.905697, -11.611951, 0), Vector(81.920376, -11.693034, 0), Vector(81.929799, -11.778564, 0), Vector(81.930687, -11.837187, 0), Vector(81.93114, -11.867127, 0)], [4, 1, 1, 1, 1, 1, 1, 1, 1, 1, 1, 1, 1, 1, 1, 1, 4], [0, 1.052816602, 2.058828735, 3.018813999, 3.961574988, 4.877590722, 5.788574389, 6.712363302, 7.658909047, 8.620312049, 9.580784896, 10.562948504, 11.56722449, 12.607883026, 13.686460295, 14.818448981, 16], False, 3, [1, 1, 1, 1, 1, 1, 1, 1, 1, 1, 1, 1, 1, 1, 1, 1, 1, 1, 1], False), False)  # 68
sketch2.addGeometry(Part.BSplineCurve([Vector(80.584986, -11.680629, 0), Vector(80.589429, -11.655346, 0), Vector(80.598072, -11.606167, 0), Vector(80.61454, -11.534979, 0), Vector(80.635929, -11.468843, 0), Vector(80.659961, -11.407187, 0), Vector(80.688528, -11.350663, 0), Vector(80.71948, -11.298377, 0), Vector(80.755981, -11.252187, 0), Vector(80.794358, -11.209675, 0), Vector(80.836479, -11.172215, 0), Vector(80.882751, -11.140635, 0), Vector(80.931883, -11.113084, 0), Vector(80.984474, -11.090525, 0), Vector(81.040604, -11.074014, 0), Vector(81.099558, -11.060956, 0), Vector(81.162097, -11.054377, 0), Vector(81.204766, -11.053083, 0), Vector(81.226513, -11.052424, 0)], [4, 1, 1, 1, 1, 1, 1, 1, 1, 1, 1, 1, 1, 1, 1, 1, 4], [0, 1.237781394, 2.407677316, 3.51963579, 4.58689595, 5.594855907, 6.570874, 7.510833816, 8.428091223, 9.330271693, 10.221190844, 11.124215526, 12.043132878, 12.973586933, 13.941700858, 14.950982896, 16], False, 3, [1, 1, 1, 1, 1, 1, 1, 1, 1, 1, 1, 1, 1, 1, 1, 1, 1, 1, 1], False), False)  # 69
sketch2.addConstraint([
    Sketcher.Constraint("Block", 4),
    Sketcher.Constraint("Block", 5),
    Sketcher.Constraint("Block", 6),
    Sketcher.Constraint("Block", 10),
    Sketcher.Constraint("Block", 11),
    Sketcher.Constraint("Block", 12),
    Sketcher.Constraint("Block", 23),
    Sketcher.Constraint("Block", 24),
    Sketcher.Constraint("Block", 31),
    Sketcher.Constraint("Block", 32),
    Sketcher.Constraint("Block", 36),
    Sketcher.Constraint("Block", 37),
    Sketcher.Constraint("Block", 38),
    Sketcher.Constraint("Block", 39),
    Sketcher.Constraint("Block", 43),
    Sketcher.Constraint("Block", 44),
    Sketcher.Constraint("Block", 55),
    Sketcher.Constraint("Block", 56),
    Sketcher.Constraint("Block", 57),
    Sketcher.Constraint("Block", 58),
    Sketcher.Constraint("Block", 59),
    Sketcher.Constraint("Block", 66),
    Sketcher.Constraint("Block", 67),
    Sketcher.Constraint("Block", 68),
    Sketcher.Constraint("Block", 69),
    Sketcher.Constraint("Coincident", 0, 2, 1, 1),
    Sketcher.Constraint("Coincident", 1, 2, 2, 1),
    Sketcher.Constraint("Coincident", 2, 2, 3, 1),
    Sketcher.Constraint("Coincident", 3, 2, 4, 2),
    Sketcher.Constraint("Coincident", 6, 1, 7, 1),
    Sketcher.Constraint("Coincident", 7, 2, 0, 1),
    Sketcher.Constraint("Coincident", 8, 2, 9, 1),
    Sketcher.Constraint("Coincident", 9, 2, 10, 2),
    Sketcher.Constraint("Coincident", 12, 1, 13, 1),
    Sketcher.Constraint("Coincident", 13, 2, 8, 1),
    Sketcher.Constraint("Coincident", 22, 2, 23, 2),
    Sketcher.Constraint("Coincident", 24, 1, 25, 1),
    Sketcher.Constraint("Coincident", 25, 2, 26, 1),
    Sketcher.Constraint("Coincident", 26, 2, 22, 1),
    Sketcher.Constraint("Coincident", 27, 2, 28, 1),
    Sketcher.Constraint("Coincident", 28, 2, 29, 1),
    Sketcher.Constraint("Coincident", 29, 2, 30, 1),
    Sketcher.Constraint("Coincident", 30, 2, 31, 2),
    Sketcher.Constraint("Coincident", 32, 1, 33, 1),
    Sketcher.Constraint("Coincident", 33, 2, 34, 1),
    Sketcher.Constraint("Coincident", 34, 2, 35, 1),
    Sketcher.Constraint("Coincident", 35, 2, 36, 2),
    Sketcher.Constraint("Coincident", 39, 1, 40, 1),
    Sketcher.Constraint("Coincident", 40, 2, 27, 1),
    Sketcher.Constraint("Coincident", 41, 2, 42, 1),
    Sketcher.Constraint("Coincident", 42, 2, 43, 2),
    Sketcher.Constraint("Coincident", 44, 1, 45, 1),
    Sketcher.Constraint("Coincident", 45, 2, 41, 1),
    Sketcher.Constraint("Coincident", 54, 2, 55, 2),
    Sketcher.Constraint("Coincident", 59, 1, 60, 1),
    Sketcher.Constraint("Coincident", 60, 2, 61, 1),
    Sketcher.Constraint("Coincident", 61, 2, 62, 1),
    Sketcher.Constraint("Coincident", 62, 2, 63, 1),
    Sketcher.Constraint("Coincident", 63, 2, 64, 1),
    Sketcher.Constraint("Coincident", 64, 2, 65, 1),
    Sketcher.Constraint("Coincident", 65, 2, 66, 2),
    Sketcher.Constraint("Coincident", 69, 1, 54, 1),
    Sketcher.Constraint("Vertical", 0),
    Sketcher.Constraint("Horizontal", 1),
    Sketcher.Constraint("Vertical", 2),
    Sketcher.Constraint("Horizontal", 3),
    Sketcher.Constraint("Horizontal", 7),
    Sketcher.Constraint("Vertical", 8),
    Sketcher.Constraint("Horizontal", 9),
    Sketcher.Constraint("Horizontal", 13),
    Sketcher.Constraint("Horizontal", 15),
    Sketcher.Constraint("Horizontal", 17),
    Sketcher.Constraint("Horizontal", 19),
    Sketcher.Constraint("Horizontal", 21),
    Sketcher.Constraint("Horizontal", 26),
    Sketcher.Constraint("Vertical", 27),
    Sketcher.Constraint("Horizontal", 28),
    Sketcher.Constraint("Vertical", 29),
    Sketcher.Constraint("Horizontal", 30),
    Sketcher.Constraint("Horizontal", 34),
    Sketcher.Constraint("Horizontal", 40),
    Sketcher.Constraint("Vertical", 41),
    Sketcher.Constraint("Horizontal", 42),
    Sketcher.Constraint("Horizontal", 45),
    Sketcher.Constraint("Vertical", 46),
    Sketcher.Constraint("Horizontal", 47),
    Sketcher.Constraint("Vertical", 48),
    Sketcher.Constraint("Horizontal", 49),
    Sketcher.Constraint("Vertical", 50),
    Sketcher.Constraint("Horizontal", 51),
    Sketcher.Constraint("Vertical", 52),
    Sketcher.Constraint("Horizontal", 53),
    Sketcher.Constraint("Horizontal", 61),
    Sketcher.Constraint("Vertical", 62),
    Sketcher.Constraint("Horizontal", 63),
    Sketcher.Constraint("DistanceY", 0, 1, 0, 2, 3.5),
    Sketcher.Constraint("DistanceY", 27, 1, 27, 2, 3.5),
    Sketcher.Constraint("DistanceY", 20, 2, 18, 2, 3.5),
    Sketcher.Constraint("DistanceY", 50, 2, 47, 2, 3.5),
    Sketcher.Constraint("DistanceX", 45, 2, 45, 1, 0.9374),
    Sketcher.Constraint("DistanceX", 1, 1, 1, 2, 0.49359),
    Sketcher.Constraint("DistanceX", 3, 1, 3, 2, 0.857472),
    Sketcher.Constraint("DistanceX", 13, 2, 13, 1, 0.844151),
    Sketcher.Constraint("DistanceX", 19, 1, 19, 2, 0.524439),
    Sketcher.Constraint("DistanceX", 21, 2, 21, 1, 0.55599),
    Sketcher.Constraint("DistanceX", 28, 1, 28, 2, 0.49359),
    Sketcher.Constraint("DistanceX", 30, 1, 30, 2, 0.505509),
    Sketcher.Constraint("DistanceX", 47, 1, 47, 2, 0.49359),
    Sketcher.Constraint("DistanceX", 51, 2, 51, 1, 2.737179),
    Sketcher.Constraint("DistanceX", 61, 1, 61, 2, 1.29357),
    Sketcher.Constraint("DistanceX", -1, 1, 47, 2, 78.655499),
    Sketcher.Constraint("DistanceX", -1, 1, 60, 2, 80.906801),
    Sketcher.Constraint("DistanceX", 14, 2, 18, 2, 2.811498),
    Sketcher.Constraint("DistanceX", 15, 2, 19, 2, 2.812901),
    Sketcher.Constraint("DistanceX", 9, 2, 21, 2, 2.813602),
    Sketcher.Constraint("DistanceX", 25, 2, 28, 2, 1.9372),
    Sketcher.Constraint("DistanceX", 35, 2, 49, 2, 3.563101),
    Sketcher.Constraint("Distance", 16, 1.14844),
    Sketcher.Constraint("DistanceX", 17, 1, 17, 2, 1.491286),
    Sketcher.Constraint("DistanceX", 26, 2, 26, 1, 1.195413),
    Sketcher.Constraint("DistanceX", 34, 1, 34, 2, 0.565805),
    Sketcher.Constraint("DistanceX", 63, 2, 63, 1, 1.660256),
    Sketcher.Constraint("DistanceY", 46, 1, 46, 2, 3.096154),
    Sketcher.Constraint("DistanceY", 48, 2, 48, 1, 3.096154),
    Sketcher.Constraint("DistanceY", 62, 2, 62, 1, 0.448718),
    Sketcher.Constraint("DistanceX", -1, 1, 14, 2, 70.100411),
    Sketcher.Constraint("DistanceY", 14, 2, -1, 1, 10.693449),
    Sketcher.Constraint("DistanceY", 18, 2, -1, 1, 10.693449),
    Sketcher.Constraint("DistanceY", 25, 2, -1, 1, 12.174218),
    Sketcher.Constraint("DistanceY", 33, 2, -1, 1, 10.693449),
    Sketcher.Constraint("DistanceX", -1, 1, 34, 2, 76.788412),
    Sketcher.Constraint("DistanceY", 46, 2, -1, 1, 10.693449),
    Sketcher.Constraint("DistanceY", 60, 2, -1, 1, 13.699859),
    Sketcher.Constraint("DistanceX", -1, 1, 64, 2, 80.18114),
    Sketcher.Constraint("DistanceX", 15, 2, 16, 2, 0.398938),
    Sketcher.Constraint("DistanceY", 64, 2, 54, 2, 0.717949),
])
pad2 = doc.addObject("PartDesign::Pad", "Pad001")
body.addObject(pad2)
pad2.Profile = sketch2
pad2.Length = 0.2
pad2.Reversed = True

doc.recompute()
